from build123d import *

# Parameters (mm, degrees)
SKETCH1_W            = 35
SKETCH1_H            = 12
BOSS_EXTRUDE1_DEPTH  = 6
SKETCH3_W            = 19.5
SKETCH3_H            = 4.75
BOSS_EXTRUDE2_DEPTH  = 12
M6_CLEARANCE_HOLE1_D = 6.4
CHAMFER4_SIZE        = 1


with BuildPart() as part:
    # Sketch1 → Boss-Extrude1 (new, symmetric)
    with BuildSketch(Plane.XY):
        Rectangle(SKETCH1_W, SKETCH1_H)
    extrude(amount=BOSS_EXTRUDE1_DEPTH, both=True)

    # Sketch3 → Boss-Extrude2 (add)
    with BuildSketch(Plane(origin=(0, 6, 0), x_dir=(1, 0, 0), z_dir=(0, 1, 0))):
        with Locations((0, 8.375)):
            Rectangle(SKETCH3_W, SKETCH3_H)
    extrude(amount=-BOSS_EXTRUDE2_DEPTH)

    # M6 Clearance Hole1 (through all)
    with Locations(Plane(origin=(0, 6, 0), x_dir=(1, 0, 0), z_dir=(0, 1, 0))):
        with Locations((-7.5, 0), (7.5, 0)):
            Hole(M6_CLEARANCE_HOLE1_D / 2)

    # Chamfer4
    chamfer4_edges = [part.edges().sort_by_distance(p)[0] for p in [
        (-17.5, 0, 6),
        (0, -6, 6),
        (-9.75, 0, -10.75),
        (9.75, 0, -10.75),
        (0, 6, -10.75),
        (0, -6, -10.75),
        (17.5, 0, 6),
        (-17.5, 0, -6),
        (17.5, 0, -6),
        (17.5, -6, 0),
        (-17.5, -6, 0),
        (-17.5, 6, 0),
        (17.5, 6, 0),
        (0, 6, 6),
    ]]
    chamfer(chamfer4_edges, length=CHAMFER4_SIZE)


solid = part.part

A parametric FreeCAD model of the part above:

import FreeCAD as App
import Part
import Sketcher

V = App.Vector


def edges_at(feature, points):
    """Names of the edges that pass closest to the given points."""
    edges = feature.Shape.Edges
    near = lambda p: min(range(len(edges)), key=lambda i: edges[i].distToShape(Part.Vertex(*p))[0])
    return sorted({f"Edge{near(p) + 1}" for p in points})

doc = App.newDocument("Part")
body = doc.addObject("PartDesign::Body", "Body")

# Sketch on XY plane
sketch1 = body.newObject("Sketcher::SketchObject", "Sketch")
sketch1.AttachmentSupport = (doc.getObject("XY_Plane"), [""])
sketch1.MapMode = "FlatFace"
sketch1.addGeometry([
    Part.LineSegment(V(-17.5, 6, 0), V(-17.5, -6, 0)),
    Part.LineSegment(V(-17.5, -6, 0), V(17.5, -6, 0)),
    Part.LineSegment(V(17.5, -6, 0), V(17.5, 6, 0)),
    Part.LineSegment(V(17.5, 6, 0), V(-17.5, 6, 0)),
], False)
sketch1.addConstraint([
    Sketcher.Constraint("Coincident", 0, 2, 1, 1),
    Sketcher.Constraint("Coincident", 1, 2, 2, 1),
    Sketcher.Constraint("Coincident", 2, 2, 3, 1),
    Sketcher.Constraint("Coincident", 3, 2, 0, 1),
    Sketcher.Constraint("Vertical", 0),
    Sketcher.Constraint("Horizontal", 1),
    Sketcher.Constraint("Vertical", 2),
    Sketcher.Constraint("Horizontal", 3),
    Sketcher.Constraint("Symmetric", 0, 2, 2, 2, -1, 1),
    Sketcher.Constraint("DistanceX", 1, 1, 1, 2, 35.0),
    Sketcher.Constraint("DistanceY", 0, 2, 0, 1, 12.0),
])
pad1 = body.newObject("PartDesign::Pad", "Pad")
pad1.Profile = sketch1
pad1.Length = 12
pad1.Midplane = True

# Sketch on XZ plane
sketch2 = body.newObject("Sketcher::SketchObject", "Sketch001")
sketch2.AttachmentSupport = (doc.getObject("XZ_Plane"), [""])
sketch2.MapMode = "FlatFace"
sketch2.AttachmentOffset = App.Placement(V(0, 0, -6), App.Rotation())
sketch2.addGeometry([
    Part.LineSegment(V(-9.75, -10.75, 0), V(-9.75, -6, 0)),
    Part.LineSegment(V(-9.75, -6, 0), V(9.75, -6, 0)),
    Part.LineSegment(V(9.75, -6, 0), V(9.75, -10.75, 0)),
    Part.LineSegment(V(9.75, -10.75, 0), V(-9.75, -10.75, 0)),
], False)
sketch2.addConstraint([
    Sketcher.Constraint("Coincident", 0, 2, 1, 1),
    Sketcher.Constraint("Coincident", 1, 2, 2, 1),
    Sketcher.Constraint("Coincident", 2, 2, 3, 1),
    Sketcher.Constraint("Coincident", 3, 2, 0, 1),
    Sketcher.Constraint("Vertical", 0),
    Sketcher.Constraint("Horizontal", 1),
    Sketcher.Constraint("Vertical", 2),
    Sketcher.Constraint("Horizontal", 3),
    Sketcher.Constraint("DistanceX", 1, 1, 1, 2, 19.5),
    Sketcher.Constraint("DistanceY", 0, 2, -1, 1, 6.0),
    Sketcher.Constraint("DistanceY", 0, 1, 0, 2, 4.75),
    Sketcher.Constraint("DistanceX", 0, 2, -1, 1, 9.75),
])
pad2 = body.newObject("PartDesign::Pad", "Pad001")
pad2.Profile = sketch2
pad2.Length = 12

# Sketch on XZ plane
sketch3 = body.newObject("Sketcher::SketchObject", "Sketch002")
sketch3.AttachmentSupport = (doc.getObject("XZ_Plane"), [""])
sketch3.MapMode = "FlatFace"
sketch3.AttachmentOffset = App.Placement(V(0, 0, -6), App.Rotation())
sketch3.addGeometry([
    Part.Circle(V(-7.5, 0, 0), V(0, 0, 1), 3.2),
    Part.Circle(V(7.5, 0, 0), V(0, 0, 1), 3.2),
], False)
sketch3.addConstraint([
    Sketcher.Constraint("Equal", 0, 1),
    Sketcher.Constraint("Symmetric", 0, 3, 1, 3, -1, 1),
    Sketcher.Constraint("PointOnObject", 0, 3, -1),
    Sketcher.Constraint("Diameter", 0, 6.4),
    Sketcher.Constraint("DistanceX", 0, 3, 1, 3, 15.0),
])
doc.recompute()
hole = body.newObject("PartDesign::Hole", "Hole")
hole.Profile = sketch3
hole.ThreadType = "None"
hole.Diameter = 6.4
hole.DepthType = "ThroughAll"
hole.Reversed = True
doc.recompute()

chamfer = body.newObject("PartDesign::Chamfer", "Chamfer")
chamfer.Base = (hole, edges_at(hole, [
    (-17.5, 0, 6),
    (0, -6, 6),
    (-9.75, 0, -10.75),
    (9.75, 0, -10.75),
    (0, 6, -10.75),
    (0, -6, -10.75),
    (17.5, 0, 6),
    (-17.5, 0, -6),
    (17.5, 0, -6),
    (17.5, -6, 0),
    (-17.5, -6, 0),
    (-17.5, 6, 0),
    (17.5, 6, 0),
    (0, 6, 6),
]))
chamfer.Size = 1

doc.recompute()
